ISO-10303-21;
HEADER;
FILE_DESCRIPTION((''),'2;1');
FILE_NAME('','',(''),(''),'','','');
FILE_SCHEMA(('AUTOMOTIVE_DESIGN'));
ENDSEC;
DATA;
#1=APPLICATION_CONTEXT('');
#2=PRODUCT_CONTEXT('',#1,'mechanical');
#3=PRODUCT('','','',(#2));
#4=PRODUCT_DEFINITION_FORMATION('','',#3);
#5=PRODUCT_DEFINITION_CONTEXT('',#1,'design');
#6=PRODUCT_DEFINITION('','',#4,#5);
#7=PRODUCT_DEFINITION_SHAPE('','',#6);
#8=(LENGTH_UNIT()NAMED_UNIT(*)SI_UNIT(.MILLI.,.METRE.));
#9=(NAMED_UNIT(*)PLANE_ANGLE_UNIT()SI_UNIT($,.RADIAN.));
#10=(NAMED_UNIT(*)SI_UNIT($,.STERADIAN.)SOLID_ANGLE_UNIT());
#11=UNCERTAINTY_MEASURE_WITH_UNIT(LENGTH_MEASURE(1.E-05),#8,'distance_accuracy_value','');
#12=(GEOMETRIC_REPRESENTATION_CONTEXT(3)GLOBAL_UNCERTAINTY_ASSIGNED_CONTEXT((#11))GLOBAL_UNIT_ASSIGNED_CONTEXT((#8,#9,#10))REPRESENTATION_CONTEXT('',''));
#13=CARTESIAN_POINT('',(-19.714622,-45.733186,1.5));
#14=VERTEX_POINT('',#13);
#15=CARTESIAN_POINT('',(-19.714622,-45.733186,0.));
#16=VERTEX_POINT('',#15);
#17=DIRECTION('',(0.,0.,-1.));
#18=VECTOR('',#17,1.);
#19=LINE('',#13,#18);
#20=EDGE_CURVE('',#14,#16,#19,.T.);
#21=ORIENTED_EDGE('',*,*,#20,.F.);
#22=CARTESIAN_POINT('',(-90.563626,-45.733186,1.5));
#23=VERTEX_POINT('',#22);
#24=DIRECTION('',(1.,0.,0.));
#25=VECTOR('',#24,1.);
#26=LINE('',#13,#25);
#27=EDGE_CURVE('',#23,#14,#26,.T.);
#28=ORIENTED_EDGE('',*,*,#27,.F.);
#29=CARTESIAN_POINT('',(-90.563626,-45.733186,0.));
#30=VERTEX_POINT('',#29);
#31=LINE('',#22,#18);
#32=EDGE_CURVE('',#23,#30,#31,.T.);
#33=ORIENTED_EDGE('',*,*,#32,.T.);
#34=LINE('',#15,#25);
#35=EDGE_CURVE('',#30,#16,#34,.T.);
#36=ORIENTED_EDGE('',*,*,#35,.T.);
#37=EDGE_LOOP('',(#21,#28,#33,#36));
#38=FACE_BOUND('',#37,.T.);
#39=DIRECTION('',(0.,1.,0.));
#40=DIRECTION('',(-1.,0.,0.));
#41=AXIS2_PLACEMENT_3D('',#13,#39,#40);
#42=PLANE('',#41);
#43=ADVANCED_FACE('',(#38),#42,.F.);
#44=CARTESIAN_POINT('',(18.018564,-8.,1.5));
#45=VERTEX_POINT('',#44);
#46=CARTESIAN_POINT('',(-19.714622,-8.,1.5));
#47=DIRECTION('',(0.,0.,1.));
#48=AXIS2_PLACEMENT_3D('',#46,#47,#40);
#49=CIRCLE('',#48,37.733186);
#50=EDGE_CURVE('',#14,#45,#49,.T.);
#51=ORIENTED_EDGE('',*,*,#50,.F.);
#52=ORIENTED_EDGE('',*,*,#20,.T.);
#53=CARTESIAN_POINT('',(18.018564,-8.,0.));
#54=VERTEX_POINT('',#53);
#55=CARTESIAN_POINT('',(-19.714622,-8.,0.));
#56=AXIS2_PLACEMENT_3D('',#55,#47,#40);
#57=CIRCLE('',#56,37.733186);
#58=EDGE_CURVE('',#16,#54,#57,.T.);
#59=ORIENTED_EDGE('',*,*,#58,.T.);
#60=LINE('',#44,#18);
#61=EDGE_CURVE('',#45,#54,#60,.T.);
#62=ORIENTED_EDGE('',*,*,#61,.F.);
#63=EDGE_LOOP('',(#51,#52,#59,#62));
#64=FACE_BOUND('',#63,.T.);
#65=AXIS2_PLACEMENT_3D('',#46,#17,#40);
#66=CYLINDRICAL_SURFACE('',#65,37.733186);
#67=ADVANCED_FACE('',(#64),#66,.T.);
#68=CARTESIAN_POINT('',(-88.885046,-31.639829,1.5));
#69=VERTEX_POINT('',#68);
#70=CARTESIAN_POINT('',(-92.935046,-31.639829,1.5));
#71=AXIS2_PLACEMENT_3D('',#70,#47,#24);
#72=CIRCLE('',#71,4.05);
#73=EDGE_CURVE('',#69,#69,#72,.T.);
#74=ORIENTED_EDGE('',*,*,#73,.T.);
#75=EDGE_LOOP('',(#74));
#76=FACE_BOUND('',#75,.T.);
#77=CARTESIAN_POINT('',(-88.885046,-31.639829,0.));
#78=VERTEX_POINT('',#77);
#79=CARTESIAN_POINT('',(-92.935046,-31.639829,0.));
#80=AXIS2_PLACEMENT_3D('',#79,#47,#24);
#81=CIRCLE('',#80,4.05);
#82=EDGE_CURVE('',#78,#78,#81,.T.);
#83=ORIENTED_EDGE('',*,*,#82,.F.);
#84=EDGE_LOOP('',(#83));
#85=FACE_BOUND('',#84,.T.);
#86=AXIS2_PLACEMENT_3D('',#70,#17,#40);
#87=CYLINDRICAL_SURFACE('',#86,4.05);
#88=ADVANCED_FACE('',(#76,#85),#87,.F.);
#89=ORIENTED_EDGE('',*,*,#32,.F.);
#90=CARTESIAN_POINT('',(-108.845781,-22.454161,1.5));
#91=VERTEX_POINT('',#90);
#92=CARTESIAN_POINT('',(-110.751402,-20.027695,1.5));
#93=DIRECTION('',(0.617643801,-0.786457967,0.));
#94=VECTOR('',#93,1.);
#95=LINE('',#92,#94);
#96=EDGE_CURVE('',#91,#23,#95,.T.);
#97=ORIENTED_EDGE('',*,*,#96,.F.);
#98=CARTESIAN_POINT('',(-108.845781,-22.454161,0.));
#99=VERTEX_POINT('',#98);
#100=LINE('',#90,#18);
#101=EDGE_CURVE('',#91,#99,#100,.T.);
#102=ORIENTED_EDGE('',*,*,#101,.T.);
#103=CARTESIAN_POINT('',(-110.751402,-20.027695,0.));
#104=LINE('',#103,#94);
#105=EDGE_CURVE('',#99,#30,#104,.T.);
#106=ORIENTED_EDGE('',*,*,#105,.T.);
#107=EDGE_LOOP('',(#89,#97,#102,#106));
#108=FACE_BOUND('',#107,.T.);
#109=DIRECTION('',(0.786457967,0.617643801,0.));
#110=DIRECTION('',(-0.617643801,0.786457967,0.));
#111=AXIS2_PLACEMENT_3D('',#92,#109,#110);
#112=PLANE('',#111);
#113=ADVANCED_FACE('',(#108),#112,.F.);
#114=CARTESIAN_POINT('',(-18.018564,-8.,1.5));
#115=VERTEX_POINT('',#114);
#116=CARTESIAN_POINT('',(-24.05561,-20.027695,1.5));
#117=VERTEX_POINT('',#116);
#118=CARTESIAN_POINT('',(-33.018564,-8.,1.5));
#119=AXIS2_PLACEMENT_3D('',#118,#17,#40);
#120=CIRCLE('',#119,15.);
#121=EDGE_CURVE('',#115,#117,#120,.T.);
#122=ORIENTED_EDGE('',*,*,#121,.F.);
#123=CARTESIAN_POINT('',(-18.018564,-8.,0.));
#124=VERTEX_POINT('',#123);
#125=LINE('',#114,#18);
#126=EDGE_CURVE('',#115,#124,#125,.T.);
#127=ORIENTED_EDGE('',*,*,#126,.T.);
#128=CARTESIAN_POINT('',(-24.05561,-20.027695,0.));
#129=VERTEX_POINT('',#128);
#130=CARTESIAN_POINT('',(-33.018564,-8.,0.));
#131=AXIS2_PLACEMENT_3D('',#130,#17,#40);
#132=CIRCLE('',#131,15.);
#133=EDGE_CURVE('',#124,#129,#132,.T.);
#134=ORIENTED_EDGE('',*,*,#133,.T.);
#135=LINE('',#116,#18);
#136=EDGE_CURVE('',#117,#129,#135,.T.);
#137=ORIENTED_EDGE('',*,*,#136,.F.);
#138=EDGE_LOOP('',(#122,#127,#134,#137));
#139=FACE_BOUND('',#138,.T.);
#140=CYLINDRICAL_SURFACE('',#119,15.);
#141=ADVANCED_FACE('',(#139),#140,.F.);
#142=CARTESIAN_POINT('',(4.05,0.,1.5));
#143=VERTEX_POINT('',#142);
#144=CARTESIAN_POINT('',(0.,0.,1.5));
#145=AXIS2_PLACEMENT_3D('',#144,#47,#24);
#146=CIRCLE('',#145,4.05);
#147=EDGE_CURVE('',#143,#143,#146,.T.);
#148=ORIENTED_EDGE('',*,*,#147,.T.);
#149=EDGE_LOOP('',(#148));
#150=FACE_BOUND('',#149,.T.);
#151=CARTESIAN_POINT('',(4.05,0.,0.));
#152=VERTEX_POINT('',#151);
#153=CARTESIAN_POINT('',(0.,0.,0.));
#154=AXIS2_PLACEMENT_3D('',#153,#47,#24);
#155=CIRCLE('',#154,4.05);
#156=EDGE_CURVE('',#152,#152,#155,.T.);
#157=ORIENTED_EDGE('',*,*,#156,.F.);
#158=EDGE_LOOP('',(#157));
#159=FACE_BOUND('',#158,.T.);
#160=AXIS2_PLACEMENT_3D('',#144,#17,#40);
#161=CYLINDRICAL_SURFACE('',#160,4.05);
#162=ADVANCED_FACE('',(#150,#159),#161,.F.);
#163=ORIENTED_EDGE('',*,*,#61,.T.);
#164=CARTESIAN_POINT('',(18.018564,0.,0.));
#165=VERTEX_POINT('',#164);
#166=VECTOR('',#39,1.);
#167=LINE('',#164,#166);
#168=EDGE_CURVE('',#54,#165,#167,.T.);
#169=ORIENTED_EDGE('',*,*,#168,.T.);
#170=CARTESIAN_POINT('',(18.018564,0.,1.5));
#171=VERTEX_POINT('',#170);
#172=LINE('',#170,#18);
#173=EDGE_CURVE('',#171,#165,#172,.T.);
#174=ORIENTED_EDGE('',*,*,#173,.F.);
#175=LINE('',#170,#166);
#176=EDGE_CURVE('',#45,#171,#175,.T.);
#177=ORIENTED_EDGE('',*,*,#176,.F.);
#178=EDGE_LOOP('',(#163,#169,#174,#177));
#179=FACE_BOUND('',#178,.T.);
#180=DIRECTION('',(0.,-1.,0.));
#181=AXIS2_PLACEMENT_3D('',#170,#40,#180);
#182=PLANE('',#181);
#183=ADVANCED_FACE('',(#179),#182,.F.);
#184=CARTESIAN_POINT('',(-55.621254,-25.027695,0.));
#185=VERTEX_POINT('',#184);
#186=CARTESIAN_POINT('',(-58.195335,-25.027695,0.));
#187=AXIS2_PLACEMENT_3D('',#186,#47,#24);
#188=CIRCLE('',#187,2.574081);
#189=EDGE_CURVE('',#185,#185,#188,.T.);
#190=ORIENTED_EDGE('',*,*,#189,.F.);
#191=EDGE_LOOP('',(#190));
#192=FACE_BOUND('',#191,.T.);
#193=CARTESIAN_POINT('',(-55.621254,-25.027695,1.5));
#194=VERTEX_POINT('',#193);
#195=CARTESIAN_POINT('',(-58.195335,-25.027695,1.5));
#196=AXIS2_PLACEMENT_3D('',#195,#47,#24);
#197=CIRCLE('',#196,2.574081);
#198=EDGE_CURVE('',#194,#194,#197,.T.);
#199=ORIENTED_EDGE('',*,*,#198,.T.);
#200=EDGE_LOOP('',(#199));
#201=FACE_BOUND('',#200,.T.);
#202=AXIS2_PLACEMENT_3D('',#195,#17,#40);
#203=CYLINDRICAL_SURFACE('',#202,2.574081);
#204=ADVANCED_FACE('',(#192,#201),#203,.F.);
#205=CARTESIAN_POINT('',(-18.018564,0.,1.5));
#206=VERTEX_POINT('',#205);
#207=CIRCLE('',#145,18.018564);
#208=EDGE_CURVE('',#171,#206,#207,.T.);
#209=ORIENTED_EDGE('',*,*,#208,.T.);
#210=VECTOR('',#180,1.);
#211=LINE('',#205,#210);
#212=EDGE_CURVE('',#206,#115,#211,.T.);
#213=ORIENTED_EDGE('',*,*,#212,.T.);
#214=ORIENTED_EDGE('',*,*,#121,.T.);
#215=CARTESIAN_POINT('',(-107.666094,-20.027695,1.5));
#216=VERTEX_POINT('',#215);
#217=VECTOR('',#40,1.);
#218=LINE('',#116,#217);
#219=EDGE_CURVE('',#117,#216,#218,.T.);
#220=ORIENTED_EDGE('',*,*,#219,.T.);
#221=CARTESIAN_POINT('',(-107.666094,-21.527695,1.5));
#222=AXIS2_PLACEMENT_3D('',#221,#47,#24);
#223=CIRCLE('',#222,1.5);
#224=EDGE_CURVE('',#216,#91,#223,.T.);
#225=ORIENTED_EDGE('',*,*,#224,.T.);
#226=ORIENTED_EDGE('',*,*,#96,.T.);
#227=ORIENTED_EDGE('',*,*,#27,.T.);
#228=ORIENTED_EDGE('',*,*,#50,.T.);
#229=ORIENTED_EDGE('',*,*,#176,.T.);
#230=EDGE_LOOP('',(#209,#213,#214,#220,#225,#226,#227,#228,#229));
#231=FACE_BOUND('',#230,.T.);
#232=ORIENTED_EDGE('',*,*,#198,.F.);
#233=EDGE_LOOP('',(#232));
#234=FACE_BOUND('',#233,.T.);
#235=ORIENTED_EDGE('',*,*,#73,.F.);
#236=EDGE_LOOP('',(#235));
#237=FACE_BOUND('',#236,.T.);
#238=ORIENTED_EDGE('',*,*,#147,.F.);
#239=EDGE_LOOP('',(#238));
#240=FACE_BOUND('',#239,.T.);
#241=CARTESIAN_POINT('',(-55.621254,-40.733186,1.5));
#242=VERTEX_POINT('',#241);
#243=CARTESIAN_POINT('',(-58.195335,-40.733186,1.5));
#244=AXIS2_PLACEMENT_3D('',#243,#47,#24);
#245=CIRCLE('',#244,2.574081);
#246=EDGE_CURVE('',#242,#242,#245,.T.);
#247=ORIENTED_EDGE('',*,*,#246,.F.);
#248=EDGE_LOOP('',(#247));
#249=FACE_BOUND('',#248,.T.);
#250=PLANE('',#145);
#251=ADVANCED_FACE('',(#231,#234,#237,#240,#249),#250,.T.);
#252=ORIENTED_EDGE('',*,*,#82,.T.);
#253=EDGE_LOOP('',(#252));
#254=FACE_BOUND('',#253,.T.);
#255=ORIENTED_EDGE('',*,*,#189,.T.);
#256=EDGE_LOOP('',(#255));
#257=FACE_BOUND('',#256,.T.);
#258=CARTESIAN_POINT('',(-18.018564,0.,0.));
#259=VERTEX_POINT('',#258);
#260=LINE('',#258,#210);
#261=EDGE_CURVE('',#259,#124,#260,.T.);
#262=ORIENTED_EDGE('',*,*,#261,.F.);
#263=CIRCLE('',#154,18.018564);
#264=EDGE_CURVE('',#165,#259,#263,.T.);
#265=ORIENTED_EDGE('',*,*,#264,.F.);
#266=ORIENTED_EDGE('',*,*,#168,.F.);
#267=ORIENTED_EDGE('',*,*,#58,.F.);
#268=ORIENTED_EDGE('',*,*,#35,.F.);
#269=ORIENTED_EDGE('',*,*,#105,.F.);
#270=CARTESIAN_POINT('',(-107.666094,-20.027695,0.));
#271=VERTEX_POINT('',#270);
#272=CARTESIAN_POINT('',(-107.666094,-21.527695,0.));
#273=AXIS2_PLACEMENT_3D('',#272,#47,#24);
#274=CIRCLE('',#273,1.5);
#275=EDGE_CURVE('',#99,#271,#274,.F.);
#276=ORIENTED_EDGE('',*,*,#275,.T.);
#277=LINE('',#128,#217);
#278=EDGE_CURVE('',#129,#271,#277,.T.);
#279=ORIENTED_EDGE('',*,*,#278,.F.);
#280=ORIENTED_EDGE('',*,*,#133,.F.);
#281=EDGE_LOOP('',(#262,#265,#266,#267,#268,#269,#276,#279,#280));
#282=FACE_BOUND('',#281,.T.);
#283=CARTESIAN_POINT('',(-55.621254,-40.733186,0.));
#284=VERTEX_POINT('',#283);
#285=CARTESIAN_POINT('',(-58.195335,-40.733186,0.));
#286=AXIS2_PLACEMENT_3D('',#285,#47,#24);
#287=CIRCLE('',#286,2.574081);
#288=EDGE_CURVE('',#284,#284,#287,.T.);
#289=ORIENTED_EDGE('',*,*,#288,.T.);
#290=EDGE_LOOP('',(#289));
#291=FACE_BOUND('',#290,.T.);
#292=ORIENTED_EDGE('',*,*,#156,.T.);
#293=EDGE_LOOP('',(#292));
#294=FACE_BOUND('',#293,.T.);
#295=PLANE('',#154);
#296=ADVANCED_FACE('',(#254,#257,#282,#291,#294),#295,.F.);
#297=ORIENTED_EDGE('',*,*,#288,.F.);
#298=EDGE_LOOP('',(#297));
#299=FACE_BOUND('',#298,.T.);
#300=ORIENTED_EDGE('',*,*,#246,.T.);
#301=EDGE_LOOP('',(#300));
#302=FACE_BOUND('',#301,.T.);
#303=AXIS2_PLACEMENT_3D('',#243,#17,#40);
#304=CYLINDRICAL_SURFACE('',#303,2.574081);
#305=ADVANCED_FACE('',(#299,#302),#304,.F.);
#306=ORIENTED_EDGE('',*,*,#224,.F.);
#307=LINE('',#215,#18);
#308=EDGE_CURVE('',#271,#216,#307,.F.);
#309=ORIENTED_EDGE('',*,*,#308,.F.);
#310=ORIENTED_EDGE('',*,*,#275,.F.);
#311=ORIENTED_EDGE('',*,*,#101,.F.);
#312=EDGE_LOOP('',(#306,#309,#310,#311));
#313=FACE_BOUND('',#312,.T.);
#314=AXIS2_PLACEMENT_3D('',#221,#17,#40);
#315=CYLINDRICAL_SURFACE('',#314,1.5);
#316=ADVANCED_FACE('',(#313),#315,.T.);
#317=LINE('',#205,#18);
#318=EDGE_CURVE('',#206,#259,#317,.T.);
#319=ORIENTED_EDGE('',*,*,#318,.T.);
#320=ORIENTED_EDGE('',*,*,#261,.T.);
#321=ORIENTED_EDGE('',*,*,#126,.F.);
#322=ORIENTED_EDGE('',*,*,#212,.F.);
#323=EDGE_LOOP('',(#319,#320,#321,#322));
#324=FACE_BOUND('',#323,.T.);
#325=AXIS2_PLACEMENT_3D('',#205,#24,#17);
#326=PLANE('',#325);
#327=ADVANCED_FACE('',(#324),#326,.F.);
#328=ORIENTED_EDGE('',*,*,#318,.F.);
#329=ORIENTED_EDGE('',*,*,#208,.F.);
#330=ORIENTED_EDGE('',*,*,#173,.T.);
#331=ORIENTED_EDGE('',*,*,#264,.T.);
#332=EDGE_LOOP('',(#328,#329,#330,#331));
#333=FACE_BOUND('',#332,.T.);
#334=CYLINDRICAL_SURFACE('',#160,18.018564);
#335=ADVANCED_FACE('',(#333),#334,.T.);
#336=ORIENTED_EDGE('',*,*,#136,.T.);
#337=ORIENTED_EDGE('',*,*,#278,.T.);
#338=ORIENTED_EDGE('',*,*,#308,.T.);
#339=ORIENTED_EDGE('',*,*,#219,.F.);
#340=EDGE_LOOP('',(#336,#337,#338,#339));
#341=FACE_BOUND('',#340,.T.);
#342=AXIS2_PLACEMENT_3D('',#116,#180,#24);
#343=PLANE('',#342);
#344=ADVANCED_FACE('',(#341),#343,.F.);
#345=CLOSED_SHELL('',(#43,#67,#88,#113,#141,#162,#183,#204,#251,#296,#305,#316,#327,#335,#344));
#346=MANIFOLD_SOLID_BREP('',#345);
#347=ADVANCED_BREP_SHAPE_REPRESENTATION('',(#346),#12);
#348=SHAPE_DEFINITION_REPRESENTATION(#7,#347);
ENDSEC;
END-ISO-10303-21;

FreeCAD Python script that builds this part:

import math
import FreeCAD as App
import Part
import Sketcher
from FreeCAD import Vector


def edges_at(feature, points):
    """Names of the edges that pass closest to the given points."""
    edges = feature.Shape.Edges
    near = lambda p: min(range(len(edges)), key=lambda i: edges[i].distToShape(Part.Vertex(*p))[0])
    return sorted({f"Edge{near(p) + 1}" for p in points})

doc = App.newDocument("Part")
body = doc.addObject("PartDesign::Body", "Body")

# Sketch on XY plane
sketch1 = body.newObject("Sketcher::SketchObject", "Sketch")
sketch1.AttachmentSupport = (doc.getObject("XY_Plane"), [""])
sketch1.MapMode = "FlatFace"
sketch1.addGeometry([
    Part.LineSegment(Vector(-18, 0, 0), Vector(-18, -8, 0)),  # 0
    Part.ArcOfCircle(Part.Circle(Vector(-33, -8, 0), Vector(0, 0, 1), 15), math.radians(-53), math.radians(0)),  # 1
    Part.LineSegment(Vector(-24.1, -20, 0), Vector(-110.8, -20, 0)),  # 2
    Part.LineSegment(Vector(-110.8, -20, 0), Vector(-90.6, -45.7, 0)),  # 3
    Part.LineSegment(Vector(-90.6, -45.7, 0), Vector(-19.7, -45.7, 0)),  # 4
    Part.ArcOfCircle(Part.Circle(Vector(-19.7, -8, 0), Vector(0, 0, 1), 37.7), math.radians(-90), math.radians(0)),  # 5
    Part.LineSegment(Vector(18, -8, 0), Vector(18, 0, 0)),  # 6
    Part.ArcOfCircle(Part.Circle(Vector(0, 0, 0), Vector(0, 0, 1), 18), math.radians(0), math.radians(180)),  # 7
    Part.Circle(Vector(-92.9, -31.6, 0), Vector(0, 0, 1), 4),  # 8
    Part.Circle(Vector(-58.2, -40.7, 0), Vector(0, 0, 1), 2.6),  # 9
    Part.Circle(Vector(-58.2, -25, 0), Vector(0, 0, 1), 2.6),  # 10
    Part.Circle(Vector(0, 0, 0), Vector(0, 0, 1), 4),  # 11
], False)
sketch1.addConstraint([
    Sketcher.Constraint("Tangent", 0, 2, 1, 2),
    Sketcher.Constraint("Coincident", 1, 1, 2, 1),
    Sketcher.Constraint("Coincident", 2, 2, 3, 1),
    Sketcher.Constraint("Coincident", 3, 2, 4, 1),
    Sketcher.Constraint("Tangent", 4, 2, 5, 1),
    Sketcher.Constraint("Tangent", 5, 2, 6, 1),
    Sketcher.Constraint("Tangent", 6, 2, 7, 1),
    Sketcher.Constraint("Tangent", 7, 2, 0, 1),
    Sketcher.Constraint("Vertical", 0),
    Sketcher.Constraint("Horizontal", 2),
    Sketcher.Constraint("Horizontal", 4),
    Sketcher.Constraint("Vertical", 6),
    Sketcher.Constraint("Coincident", 7, 3, -1, 1),
    Sketcher.Constraint("Coincident", 11, 3, -1, 1),
    Sketcher.Constraint("Equal", 9, 10),
    Sketcher.Constraint("Equal", 8, 11),
    Sketcher.Constraint("Horizontal", 1, 3, 5, 3),
    Sketcher.Constraint("Vertical", 9, 3, 10, 3),
    Sketcher.Constraint("Radius", 1, 15.0),
    Sketcher.Constraint("Diameter", 8, 8.1),
    Sketcher.Constraint("DistanceY", 0, 2, 0, 1, 8.0),
    Sketcher.Constraint("DistanceY", 10, 3, 2, 2, 5.0),
    Sketcher.Constraint("DistanceY", 3, 2, 9, 3, 5.0),
    Sketcher.Constraint("Diameter", 9, 5.148161),
    Sketcher.Constraint("Radius", 5, 37.733186),
    Sketcher.Constraint("Radius", 7, 18.018564),
    Sketcher.Constraint("DistanceX", 2, 2, 2, 1, 86.695792),
    Sketcher.Constraint("DistanceX", 4, 1, 4, 2, 70.849004),
    Sketcher.Constraint("DistanceY", 8, 3, -1, 1, 31.639829),
    Sketcher.Constraint("DistanceX", 1, 1, -1, 1, 24.05561),
    Sketcher.Constraint("DistanceX", 8, 3, 1, 3, 59.916481),
    Sketcher.Constraint("DistanceX", 8, 3, 9, 3, 34.739711),
])
pad1 = body.newObject("PartDesign::Pad", "Pad")
pad1.Profile = sketch1
pad1.Length = 1.5
doc.recompute()

fillet = body.newObject("PartDesign::Fillet", "Fillet")
fillet.Base = (pad1, edges_at(pad1, [(-110.751, -20.028, 0.75)]))
fillet.Radius = 1.5

doc.recompute()
